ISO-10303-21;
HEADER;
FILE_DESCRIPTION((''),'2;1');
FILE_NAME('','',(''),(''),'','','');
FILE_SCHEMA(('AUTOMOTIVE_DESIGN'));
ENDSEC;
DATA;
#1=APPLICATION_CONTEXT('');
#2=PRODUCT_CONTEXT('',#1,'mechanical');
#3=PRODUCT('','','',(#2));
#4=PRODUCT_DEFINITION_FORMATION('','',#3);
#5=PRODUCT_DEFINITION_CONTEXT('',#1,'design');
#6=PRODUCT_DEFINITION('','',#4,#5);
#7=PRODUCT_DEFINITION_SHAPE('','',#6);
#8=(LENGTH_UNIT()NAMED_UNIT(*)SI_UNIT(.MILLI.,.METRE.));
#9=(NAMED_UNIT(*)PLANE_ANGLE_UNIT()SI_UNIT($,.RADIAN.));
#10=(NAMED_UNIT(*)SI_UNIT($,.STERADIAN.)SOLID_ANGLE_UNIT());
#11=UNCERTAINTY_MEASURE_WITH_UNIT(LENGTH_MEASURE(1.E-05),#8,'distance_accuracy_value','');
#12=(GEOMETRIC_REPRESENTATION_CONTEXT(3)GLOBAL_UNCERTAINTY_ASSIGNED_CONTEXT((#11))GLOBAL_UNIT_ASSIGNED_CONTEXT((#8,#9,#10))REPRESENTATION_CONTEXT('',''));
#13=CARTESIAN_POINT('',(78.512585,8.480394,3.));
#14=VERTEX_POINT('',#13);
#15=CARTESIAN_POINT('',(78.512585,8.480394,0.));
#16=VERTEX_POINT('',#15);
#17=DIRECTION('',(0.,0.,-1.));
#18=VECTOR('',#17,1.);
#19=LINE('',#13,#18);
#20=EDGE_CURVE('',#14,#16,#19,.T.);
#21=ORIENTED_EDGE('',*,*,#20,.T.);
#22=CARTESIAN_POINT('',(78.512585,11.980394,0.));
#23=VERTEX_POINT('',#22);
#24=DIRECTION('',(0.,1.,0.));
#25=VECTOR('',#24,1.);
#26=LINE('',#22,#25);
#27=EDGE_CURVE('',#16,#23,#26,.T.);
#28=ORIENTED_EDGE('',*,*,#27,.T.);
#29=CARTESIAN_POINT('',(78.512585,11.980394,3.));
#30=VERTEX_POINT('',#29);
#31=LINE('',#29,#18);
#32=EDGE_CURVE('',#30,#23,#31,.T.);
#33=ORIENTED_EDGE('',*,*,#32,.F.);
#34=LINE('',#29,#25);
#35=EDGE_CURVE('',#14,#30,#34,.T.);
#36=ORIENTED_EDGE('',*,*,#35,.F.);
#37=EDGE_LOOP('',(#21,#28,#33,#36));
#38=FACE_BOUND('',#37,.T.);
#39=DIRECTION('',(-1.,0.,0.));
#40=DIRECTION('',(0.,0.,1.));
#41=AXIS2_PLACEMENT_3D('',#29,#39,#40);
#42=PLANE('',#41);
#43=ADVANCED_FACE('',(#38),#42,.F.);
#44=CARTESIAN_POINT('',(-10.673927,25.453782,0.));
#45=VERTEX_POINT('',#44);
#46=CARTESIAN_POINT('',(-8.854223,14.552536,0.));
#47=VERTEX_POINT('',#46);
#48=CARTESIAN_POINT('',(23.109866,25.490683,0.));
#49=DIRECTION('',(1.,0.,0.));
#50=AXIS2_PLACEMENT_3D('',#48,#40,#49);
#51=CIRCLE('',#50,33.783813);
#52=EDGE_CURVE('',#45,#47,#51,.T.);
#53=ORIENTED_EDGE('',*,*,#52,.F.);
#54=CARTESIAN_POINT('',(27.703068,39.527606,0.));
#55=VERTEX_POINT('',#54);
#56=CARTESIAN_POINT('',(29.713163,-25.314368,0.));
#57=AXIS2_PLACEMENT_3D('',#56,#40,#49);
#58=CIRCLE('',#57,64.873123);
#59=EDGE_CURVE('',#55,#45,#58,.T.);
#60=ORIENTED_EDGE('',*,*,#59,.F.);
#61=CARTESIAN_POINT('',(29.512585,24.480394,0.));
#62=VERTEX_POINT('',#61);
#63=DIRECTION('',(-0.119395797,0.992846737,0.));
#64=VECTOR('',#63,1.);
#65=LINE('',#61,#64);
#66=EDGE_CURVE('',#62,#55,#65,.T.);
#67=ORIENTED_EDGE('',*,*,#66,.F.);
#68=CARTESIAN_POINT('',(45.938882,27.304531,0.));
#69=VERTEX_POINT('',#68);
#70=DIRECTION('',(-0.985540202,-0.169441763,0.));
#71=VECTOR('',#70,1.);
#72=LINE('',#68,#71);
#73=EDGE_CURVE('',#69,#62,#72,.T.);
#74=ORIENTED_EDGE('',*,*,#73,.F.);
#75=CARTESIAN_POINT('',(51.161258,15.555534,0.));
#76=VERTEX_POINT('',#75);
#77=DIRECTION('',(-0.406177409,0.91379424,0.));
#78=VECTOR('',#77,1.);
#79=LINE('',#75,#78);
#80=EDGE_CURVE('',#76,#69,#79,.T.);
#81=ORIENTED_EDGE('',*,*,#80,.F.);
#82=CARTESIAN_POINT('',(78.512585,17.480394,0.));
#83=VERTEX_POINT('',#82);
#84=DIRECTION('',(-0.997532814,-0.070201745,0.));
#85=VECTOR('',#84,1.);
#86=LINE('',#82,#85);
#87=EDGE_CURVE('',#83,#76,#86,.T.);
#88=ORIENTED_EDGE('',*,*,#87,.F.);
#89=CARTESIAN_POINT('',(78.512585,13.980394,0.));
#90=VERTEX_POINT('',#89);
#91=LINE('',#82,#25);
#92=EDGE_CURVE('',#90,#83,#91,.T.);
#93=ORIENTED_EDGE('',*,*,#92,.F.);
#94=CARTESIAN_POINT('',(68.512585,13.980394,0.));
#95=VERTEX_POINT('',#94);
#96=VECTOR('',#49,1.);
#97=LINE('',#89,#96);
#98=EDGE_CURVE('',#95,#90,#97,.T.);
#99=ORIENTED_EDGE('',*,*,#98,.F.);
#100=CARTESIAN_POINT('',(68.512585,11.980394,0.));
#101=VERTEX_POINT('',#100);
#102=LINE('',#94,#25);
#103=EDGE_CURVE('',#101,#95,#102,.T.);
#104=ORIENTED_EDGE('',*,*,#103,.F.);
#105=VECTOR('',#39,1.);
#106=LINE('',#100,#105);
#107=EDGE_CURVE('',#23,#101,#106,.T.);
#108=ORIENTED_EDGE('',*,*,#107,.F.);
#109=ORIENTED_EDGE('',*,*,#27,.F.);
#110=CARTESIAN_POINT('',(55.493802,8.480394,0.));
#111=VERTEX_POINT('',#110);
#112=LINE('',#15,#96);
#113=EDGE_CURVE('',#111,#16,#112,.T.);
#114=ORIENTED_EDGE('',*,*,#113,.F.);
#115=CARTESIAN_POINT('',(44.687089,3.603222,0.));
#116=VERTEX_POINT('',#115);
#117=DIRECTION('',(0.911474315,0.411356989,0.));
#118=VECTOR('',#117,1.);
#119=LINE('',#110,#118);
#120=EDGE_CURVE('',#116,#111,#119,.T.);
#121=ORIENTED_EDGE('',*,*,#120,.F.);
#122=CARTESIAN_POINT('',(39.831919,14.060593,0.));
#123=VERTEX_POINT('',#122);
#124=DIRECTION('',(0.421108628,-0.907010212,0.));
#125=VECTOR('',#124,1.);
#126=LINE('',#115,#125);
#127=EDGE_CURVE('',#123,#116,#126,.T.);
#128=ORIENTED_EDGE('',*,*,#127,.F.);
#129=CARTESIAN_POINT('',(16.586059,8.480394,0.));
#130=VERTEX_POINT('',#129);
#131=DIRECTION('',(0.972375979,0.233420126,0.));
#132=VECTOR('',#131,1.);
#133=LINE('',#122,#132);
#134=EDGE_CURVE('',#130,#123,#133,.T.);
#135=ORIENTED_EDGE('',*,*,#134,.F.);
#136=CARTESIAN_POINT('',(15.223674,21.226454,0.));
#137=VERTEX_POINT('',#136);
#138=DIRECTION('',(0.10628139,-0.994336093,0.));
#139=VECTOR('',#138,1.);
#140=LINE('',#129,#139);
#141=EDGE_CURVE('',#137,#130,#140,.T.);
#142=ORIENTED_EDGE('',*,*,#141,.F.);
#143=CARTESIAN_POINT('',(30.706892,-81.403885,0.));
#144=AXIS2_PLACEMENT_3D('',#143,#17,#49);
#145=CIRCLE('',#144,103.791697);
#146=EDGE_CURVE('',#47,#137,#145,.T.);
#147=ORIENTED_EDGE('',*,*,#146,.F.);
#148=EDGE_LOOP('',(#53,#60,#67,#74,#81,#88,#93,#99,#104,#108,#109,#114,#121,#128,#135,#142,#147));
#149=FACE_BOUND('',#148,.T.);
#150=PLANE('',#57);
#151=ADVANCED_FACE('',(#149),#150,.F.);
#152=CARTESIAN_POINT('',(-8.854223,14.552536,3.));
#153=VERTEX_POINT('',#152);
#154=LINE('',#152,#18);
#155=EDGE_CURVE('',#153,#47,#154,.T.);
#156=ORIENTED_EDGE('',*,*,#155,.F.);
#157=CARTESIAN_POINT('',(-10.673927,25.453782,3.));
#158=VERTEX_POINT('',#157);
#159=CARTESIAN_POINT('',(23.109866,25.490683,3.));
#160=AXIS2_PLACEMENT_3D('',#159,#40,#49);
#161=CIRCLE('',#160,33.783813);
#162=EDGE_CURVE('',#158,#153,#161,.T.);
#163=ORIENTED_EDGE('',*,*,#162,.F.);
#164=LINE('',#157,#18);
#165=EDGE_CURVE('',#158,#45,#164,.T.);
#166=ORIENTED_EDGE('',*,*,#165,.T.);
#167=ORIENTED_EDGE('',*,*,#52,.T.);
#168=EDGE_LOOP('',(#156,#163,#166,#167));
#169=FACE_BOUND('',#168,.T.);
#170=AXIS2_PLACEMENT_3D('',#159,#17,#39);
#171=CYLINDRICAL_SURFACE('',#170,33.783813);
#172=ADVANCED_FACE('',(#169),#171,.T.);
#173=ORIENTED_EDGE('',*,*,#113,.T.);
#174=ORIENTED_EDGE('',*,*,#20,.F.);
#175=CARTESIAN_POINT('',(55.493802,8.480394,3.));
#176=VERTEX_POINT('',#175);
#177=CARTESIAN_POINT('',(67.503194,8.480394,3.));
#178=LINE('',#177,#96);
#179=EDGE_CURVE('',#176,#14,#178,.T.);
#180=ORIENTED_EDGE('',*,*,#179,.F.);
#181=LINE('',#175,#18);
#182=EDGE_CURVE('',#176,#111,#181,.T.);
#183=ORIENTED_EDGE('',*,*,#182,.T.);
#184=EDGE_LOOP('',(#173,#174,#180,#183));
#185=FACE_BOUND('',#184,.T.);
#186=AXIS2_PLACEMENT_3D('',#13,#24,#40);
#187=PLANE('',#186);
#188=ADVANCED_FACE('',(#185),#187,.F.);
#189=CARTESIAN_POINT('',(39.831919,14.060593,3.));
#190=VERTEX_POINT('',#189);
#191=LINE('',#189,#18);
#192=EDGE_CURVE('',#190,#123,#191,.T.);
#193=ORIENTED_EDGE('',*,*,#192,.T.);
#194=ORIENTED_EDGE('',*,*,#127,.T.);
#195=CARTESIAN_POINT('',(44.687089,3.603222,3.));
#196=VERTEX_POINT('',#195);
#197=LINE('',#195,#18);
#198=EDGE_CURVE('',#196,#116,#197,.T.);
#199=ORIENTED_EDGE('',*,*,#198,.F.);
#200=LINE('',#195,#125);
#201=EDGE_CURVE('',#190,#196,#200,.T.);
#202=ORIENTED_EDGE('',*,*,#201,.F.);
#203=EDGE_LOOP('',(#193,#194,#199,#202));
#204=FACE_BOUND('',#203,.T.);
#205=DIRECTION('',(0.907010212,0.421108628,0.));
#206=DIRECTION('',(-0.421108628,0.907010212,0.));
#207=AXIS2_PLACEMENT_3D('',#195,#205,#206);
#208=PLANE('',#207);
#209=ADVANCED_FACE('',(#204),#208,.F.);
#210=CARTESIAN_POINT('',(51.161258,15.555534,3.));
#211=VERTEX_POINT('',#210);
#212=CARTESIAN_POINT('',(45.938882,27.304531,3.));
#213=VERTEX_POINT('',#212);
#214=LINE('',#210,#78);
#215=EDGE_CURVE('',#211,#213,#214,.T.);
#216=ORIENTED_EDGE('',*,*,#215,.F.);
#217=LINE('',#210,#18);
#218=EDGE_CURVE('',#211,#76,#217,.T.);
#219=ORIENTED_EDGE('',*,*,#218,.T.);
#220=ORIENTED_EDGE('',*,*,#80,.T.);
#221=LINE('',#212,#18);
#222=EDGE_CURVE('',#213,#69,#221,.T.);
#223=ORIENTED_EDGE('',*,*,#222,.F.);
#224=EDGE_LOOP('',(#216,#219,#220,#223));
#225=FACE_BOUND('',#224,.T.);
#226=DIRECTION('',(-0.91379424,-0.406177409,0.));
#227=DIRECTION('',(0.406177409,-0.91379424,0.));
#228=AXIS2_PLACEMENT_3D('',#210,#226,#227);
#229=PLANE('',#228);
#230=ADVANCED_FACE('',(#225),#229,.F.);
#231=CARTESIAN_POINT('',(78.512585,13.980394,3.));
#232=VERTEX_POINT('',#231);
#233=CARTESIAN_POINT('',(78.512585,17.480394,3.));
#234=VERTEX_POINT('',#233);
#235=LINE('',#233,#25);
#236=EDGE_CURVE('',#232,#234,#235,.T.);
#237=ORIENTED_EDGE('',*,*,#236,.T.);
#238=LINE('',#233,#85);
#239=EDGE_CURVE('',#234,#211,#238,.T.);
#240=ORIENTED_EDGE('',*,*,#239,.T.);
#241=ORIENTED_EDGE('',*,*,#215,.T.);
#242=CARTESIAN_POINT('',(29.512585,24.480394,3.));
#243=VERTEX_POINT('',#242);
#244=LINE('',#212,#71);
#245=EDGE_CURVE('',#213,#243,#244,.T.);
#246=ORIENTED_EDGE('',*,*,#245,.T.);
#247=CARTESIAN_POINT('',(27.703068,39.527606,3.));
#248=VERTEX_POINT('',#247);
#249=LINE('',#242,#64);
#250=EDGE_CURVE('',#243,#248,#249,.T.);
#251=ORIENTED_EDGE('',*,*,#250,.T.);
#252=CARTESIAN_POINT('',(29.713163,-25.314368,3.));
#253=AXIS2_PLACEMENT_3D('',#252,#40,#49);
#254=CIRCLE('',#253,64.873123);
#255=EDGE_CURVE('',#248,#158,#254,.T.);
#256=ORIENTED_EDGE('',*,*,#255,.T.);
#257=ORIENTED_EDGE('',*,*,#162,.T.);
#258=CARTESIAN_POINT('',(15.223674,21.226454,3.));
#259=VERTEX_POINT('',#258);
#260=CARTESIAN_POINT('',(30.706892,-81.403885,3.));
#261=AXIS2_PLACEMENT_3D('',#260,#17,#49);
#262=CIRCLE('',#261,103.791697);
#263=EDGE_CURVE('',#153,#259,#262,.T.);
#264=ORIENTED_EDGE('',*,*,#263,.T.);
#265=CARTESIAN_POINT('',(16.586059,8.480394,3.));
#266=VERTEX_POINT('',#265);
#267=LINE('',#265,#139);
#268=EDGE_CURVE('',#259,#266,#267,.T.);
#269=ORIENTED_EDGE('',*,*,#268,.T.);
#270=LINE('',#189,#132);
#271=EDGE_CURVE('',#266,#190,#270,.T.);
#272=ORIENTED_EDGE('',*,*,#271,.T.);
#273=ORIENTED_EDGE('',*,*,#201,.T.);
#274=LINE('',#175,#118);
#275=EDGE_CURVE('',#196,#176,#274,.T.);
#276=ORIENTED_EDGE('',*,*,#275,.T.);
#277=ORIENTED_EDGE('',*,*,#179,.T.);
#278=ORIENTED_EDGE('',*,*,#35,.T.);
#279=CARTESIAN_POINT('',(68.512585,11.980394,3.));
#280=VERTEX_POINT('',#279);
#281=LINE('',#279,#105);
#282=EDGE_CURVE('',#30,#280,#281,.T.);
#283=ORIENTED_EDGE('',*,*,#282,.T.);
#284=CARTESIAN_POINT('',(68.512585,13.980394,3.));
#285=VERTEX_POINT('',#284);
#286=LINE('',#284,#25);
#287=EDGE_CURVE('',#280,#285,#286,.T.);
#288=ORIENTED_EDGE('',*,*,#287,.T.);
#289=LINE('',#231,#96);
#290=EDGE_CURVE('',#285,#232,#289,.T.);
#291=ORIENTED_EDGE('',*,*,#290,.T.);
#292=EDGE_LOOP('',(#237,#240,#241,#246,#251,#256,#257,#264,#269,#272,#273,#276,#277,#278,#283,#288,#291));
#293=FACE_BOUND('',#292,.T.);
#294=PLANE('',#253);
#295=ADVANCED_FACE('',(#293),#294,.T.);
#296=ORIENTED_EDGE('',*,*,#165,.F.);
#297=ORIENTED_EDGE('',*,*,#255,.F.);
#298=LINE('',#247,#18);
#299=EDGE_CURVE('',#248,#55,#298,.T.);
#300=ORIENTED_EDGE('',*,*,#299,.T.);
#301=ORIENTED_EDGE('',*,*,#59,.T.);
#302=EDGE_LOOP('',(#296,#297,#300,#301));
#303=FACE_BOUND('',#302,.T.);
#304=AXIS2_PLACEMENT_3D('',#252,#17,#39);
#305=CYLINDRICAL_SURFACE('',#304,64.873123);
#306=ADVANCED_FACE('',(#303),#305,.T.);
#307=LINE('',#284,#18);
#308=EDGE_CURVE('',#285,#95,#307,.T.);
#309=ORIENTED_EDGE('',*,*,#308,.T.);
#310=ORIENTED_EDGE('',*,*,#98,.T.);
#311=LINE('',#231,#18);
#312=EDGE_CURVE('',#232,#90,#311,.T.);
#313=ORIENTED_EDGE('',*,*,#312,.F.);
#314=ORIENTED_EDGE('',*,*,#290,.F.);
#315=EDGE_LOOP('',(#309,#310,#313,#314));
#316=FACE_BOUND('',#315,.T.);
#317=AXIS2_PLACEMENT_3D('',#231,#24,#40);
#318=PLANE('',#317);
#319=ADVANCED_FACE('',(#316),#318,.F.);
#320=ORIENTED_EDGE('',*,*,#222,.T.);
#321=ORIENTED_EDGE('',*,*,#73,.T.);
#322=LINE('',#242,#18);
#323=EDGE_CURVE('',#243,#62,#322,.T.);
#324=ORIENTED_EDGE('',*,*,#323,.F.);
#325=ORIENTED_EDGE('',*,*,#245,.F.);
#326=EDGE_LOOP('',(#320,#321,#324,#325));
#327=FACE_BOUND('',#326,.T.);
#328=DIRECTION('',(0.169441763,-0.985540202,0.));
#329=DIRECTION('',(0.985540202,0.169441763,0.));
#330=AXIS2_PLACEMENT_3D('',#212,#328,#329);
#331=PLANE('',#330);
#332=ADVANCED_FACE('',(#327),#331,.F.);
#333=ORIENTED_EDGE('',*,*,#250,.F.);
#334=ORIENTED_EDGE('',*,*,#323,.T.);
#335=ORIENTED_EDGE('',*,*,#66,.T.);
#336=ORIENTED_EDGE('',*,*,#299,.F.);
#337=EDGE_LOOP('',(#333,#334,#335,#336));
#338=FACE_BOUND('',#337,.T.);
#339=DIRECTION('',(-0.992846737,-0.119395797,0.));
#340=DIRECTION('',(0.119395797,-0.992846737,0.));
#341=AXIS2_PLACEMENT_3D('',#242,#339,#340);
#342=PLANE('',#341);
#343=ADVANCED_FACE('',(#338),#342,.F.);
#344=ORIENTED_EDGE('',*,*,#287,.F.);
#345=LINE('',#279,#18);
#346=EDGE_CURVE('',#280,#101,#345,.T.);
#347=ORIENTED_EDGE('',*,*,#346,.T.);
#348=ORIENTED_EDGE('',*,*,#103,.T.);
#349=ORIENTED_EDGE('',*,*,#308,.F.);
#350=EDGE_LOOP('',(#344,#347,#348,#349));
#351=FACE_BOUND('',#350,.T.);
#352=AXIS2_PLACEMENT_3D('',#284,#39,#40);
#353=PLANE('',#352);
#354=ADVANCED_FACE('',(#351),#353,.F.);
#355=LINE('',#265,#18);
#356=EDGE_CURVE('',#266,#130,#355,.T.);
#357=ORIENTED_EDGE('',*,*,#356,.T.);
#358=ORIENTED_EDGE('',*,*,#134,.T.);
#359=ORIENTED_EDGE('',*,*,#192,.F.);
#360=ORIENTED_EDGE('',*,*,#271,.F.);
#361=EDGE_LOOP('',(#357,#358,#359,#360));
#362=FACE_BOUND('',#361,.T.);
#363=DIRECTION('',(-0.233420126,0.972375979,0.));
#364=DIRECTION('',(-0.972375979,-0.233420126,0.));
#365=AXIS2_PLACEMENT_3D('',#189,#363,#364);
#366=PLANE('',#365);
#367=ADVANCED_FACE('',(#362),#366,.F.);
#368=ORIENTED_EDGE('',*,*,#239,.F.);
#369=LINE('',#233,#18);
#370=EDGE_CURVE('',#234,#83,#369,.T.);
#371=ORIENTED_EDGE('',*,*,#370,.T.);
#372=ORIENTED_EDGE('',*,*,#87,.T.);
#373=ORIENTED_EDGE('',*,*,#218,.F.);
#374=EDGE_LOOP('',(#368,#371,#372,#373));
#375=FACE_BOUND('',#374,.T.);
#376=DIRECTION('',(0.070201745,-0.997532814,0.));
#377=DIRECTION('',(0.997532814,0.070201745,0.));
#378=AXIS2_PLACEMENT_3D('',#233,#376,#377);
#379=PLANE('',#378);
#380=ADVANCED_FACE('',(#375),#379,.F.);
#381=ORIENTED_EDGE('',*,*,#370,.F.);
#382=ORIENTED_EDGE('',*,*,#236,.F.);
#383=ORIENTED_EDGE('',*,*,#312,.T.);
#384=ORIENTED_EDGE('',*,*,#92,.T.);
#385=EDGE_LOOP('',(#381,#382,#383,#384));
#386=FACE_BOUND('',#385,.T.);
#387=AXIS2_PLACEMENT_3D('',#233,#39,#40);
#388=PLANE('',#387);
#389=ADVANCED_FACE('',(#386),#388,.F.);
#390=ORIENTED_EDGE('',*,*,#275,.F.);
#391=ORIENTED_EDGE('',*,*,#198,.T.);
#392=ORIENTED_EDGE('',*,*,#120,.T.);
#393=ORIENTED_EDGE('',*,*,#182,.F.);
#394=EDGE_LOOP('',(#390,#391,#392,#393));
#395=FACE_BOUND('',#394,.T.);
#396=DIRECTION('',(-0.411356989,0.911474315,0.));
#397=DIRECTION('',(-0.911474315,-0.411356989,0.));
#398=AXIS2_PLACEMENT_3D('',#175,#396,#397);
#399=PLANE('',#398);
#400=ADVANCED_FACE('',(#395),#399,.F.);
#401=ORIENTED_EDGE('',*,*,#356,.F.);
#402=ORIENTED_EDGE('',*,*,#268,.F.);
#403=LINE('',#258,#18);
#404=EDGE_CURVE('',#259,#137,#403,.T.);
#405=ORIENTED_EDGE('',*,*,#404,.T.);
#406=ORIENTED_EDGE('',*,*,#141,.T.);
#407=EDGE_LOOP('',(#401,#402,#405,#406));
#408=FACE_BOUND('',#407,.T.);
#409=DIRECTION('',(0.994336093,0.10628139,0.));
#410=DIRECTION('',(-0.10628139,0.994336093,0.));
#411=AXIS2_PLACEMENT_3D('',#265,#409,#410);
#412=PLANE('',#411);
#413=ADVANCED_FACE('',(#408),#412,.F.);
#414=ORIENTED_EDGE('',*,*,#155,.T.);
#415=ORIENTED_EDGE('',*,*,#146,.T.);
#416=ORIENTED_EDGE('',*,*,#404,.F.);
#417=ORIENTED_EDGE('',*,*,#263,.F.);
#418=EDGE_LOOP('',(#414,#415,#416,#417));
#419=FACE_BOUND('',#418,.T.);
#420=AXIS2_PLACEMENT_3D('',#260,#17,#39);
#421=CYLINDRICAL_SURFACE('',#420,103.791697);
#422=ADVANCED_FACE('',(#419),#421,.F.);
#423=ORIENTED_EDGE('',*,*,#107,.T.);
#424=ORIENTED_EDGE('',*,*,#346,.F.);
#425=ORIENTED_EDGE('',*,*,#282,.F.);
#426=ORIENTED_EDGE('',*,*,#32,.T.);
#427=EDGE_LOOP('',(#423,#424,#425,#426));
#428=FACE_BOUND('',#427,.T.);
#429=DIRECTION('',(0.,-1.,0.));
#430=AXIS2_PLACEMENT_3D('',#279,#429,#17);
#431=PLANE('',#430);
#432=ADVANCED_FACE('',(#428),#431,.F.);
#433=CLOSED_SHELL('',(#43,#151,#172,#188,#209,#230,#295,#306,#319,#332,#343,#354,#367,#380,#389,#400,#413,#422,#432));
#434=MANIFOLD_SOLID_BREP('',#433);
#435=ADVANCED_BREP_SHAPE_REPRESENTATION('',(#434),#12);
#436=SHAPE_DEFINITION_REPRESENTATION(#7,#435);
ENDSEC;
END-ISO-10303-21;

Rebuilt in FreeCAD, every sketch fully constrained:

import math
import FreeCAD as App
import Part
import Sketcher
from FreeCAD import Vector

doc = App.newDocument("Part")
body = doc.addObject("PartDesign::Body", "Body")

# Sketch on XY plane
sketch1 = body.newObject("Sketcher::SketchObject", "Sketch")
sketch1.AttachmentSupport = (doc.getObject("XY_Plane"), [""])
sketch1.MapMode = "FlatFace"
sketch1.addGeometry(Part.LineSegment(Vector(55.5, 8.5, 0), Vector(78.5, 8.5, 0)), False)
sketch1.addGeometry(Part.LineSegment(Vector(78.5, 8.5, 0), Vector(78.5, 12, 0)), False)
sketch1.addGeometry(Part.LineSegment(Vector(78.5, 12, 0), Vector(68.5, 12, 0)), False)
sketch1.addGeometry(Part.LineSegment(Vector(68.5, 12, 0), Vector(68.5, 14, 0)), False)
sketch1.addGeometry(Part.LineSegment(Vector(68.5, 14, 0), Vector(78.5, 14, 0)), False)
sketch1.addGeometry(Part.LineSegment(Vector(78.5, 14, 0), Vector(78.5, 17.5, 0)), False)
sketch1.addGeometry(Part.LineSegment(Vector(78.5, 17.5, 0), Vector(51.2, 15.6, 0)), False)
sketch1.addGeometry(Part.LineSegment(Vector(51.2, 15.6, 0), Vector(45.9, 27.3, 0)), False)
sketch1.addGeometry(Part.LineSegment(Vector(45.9, 27.3, 0), Vector(29.5, 24.5, 0)), False)
sketch1.addGeometry(Part.LineSegment(Vector(29.5, 24.5, 0), Vector(27.7, 39.5, 0)), False)
sketch1.addGeometry(Part.ArcOfCircle(Part.Circle(Vector(29.7, -25.3, 0), Vector(0, 0, 1), 64.9), math.radians(92), math.radians(129)), False)
sketch1.addGeometry(Part.ArcOfCircle(Part.Circle(Vector(23.1, 25.5, 0), Vector(0, 0, 1), 33.8), math.radians(-179.94), math.radians(-161.11)), False)
sketch1.addGeometry(Part.ArcOfCircle(Part.Circle(Vector(30.7, -81.4, 0), Vector(0, 0, 1), 103.8), math.radians(98.58), math.radians(112.41)), False)
sketch1.addGeometry(Part.LineSegment(Vector(15.2, 21.2, 0), Vector(16.6, 8.5, 0)), False)
sketch1.addGeometry(Part.LineSegment(Vector(16.6, 8.5, 0), Vector(39.8, 14.1, 0)), False)
sketch1.addGeometry(Part.LineSegment(Vector(39.8, 14.1, 0), Vector(44.7, 3.6, 0)), False)
sketch1.addGeometry(Part.LineSegment(Vector(44.7, 3.6, 0), Vector(55.5, 8.5, 0)), False)
sketch1.addConstraint(Sketcher.Constraint("Coincident", 0, 2, 1, 1))
sketch1.addConstraint(Sketcher.Constraint("Coincident", 1, 2, 2, 1))
sketch1.addConstraint(Sketcher.Constraint("Coincident", 2, 2, 3, 1))
sketch1.addConstraint(Sketcher.Constraint("Coincident", 3, 2, 4, 1))
sketch1.addConstraint(Sketcher.Constraint("Coincident", 4, 2, 5, 1))
sketch1.addConstraint(Sketcher.Constraint("Coincident", 5, 2, 6, 1))
sketch1.addConstraint(Sketcher.Constraint("Coincident", 6, 2, 7, 1))
sketch1.addConstraint(Sketcher.Constraint("Coincident", 7, 2, 8, 1))
sketch1.addConstraint(Sketcher.Constraint("Coincident", 8, 2, 9, 1))
sketch1.addConstraint(Sketcher.Constraint("Coincident", 9, 2, 10, 1))
sketch1.addConstraint(Sketcher.Constraint("Coincident", 10, 2, 11, 1))
sketch1.addConstraint(Sketcher.Constraint("Coincident", 11, 2, 12, 2))
sketch1.addConstraint(Sketcher.Constraint("Coincident", 12, 1, 13, 1))
sketch1.addConstraint(Sketcher.Constraint("Coincident", 13, 2, 14, 1))
sketch1.addConstraint(Sketcher.Constraint("Coincident", 14, 2, 15, 1))
sketch1.addConstraint(Sketcher.Constraint("Coincident", 15, 2, 16, 1))
sketch1.addConstraint(Sketcher.Constraint("Coincident", 16, 2, 0, 1))
sketch1.addConstraint(Sketcher.Constraint("Horizontal", 0))
sketch1.addConstraint(Sketcher.Constraint("Vertical", 1))
sketch1.addConstraint(Sketcher.Constraint("Horizontal", 2))
sketch1.addConstraint(Sketcher.Constraint("Vertical", 3))
sketch1.addConstraint(Sketcher.Constraint("Horizontal", 4))
sketch1.addConstraint(Sketcher.Constraint("Vertical", 5))
sketch1.addConstraint(Sketcher.Constraint("Horizontal", 0, 2, 13, 2))
sketch1.addConstraint(Sketcher.Constraint("Vertical", 1, 2, 4, 2))
sketch1.addConstraint(Sketcher.Constraint("Equal", 1, 5))
sketch1.addConstraint(Sketcher.Constraint("DistanceX", 2, 2, 2, 1, 10.0))
sketch1.addConstraint(Sketcher.Constraint("DistanceY", 3, 1, 3, 2, 2.0))
sketch1.addConstraint(Sketcher.Constraint("DistanceY", 1, 1, 1, 2, 3.5))
sketch1.addConstraint(Sketcher.Constraint("DistanceX", 8, 2, 3, 2, 39.0))
sketch1.addConstraint(Sketcher.Constraint("DistanceY", 13, 2, 8, 2, 16.0))
sketch1.addConstraint(Sketcher.Constraint("Radius", 10, 64.873123))
sketch1.addConstraint(Sketcher.Constraint("Radius", 11, 33.783813))
sketch1.addConstraint(Sketcher.Constraint("Radius", 12, 103.791697))
sketch1.addConstraint(Sketcher.Constraint("Distance", 16, 11.8563))
sketch1.addConstraint(Sketcher.Constraint("DistanceX", -1, 1, 16, 2, 55.493802))
sketch1.addConstraint(Sketcher.Constraint("DistanceX", 11, 3, 9, 2, 4.593201))
sketch1.addConstraint(Sketcher.Constraint("DistanceY", 10, 2, 11, 3, 0.036901))
sketch1.addConstraint(Sketcher.Constraint("DistanceX", 10, 2, 12, 1, 25.897601))
sketch1.addConstraint(Sketcher.Constraint("DistanceY", 14, 2, 8, 2, 10.419801))
sketch1.addConstraint(Sketcher.Constraint("DistanceX", 0, 1, 0, 2, 23.018784))
sketch1.addConstraint(Sketcher.Constraint("DistanceX", -1, 1, 12, 3, 30.706892))
sketch1.addConstraint(Sketcher.Constraint("DistanceX", -1, 1, 6, 2, 51.161258))
sketch1.addConstraint(Sketcher.Constraint("DistanceX", -1, 1, 7, 2, 45.938882))
sketch1.addConstraint(Sketcher.Constraint("DistanceY", -1, 1, 7, 2, 27.304531))
sketch1.addConstraint(Sketcher.Constraint("DistanceY", -1, 1, 10, 2, 25.453782))
sketch1.addConstraint(Sketcher.Constraint("DistanceX", -1, 1, 13, 2, 16.586059))
sketch1.addConstraint(Sketcher.Constraint("DistanceX", -1, 1, 14, 2, 39.831919))
sketch1.addConstraint(Sketcher.Constraint("DistanceX", -1, 1, 15, 2, 44.687089))
sketch1.addConstraint(Sketcher.Constraint("DistanceY", 10, 3, 11, 3, 50.805051))
sketch1.addConstraint(Sketcher.Constraint("DistanceX", 10, 3, 12, 3, 0.993729))
sketch1.addConstraint(Sketcher.Constraint("DistanceY", 0, 2, 11, 3, 17.010289))
sketch1.addConstraint(Sketcher.Constraint("DistanceY", 12, 3, 0, 2, 89.884279))
sketch1.addConstraint(Sketcher.Constraint("DistanceY", 3, 2, 6, 2, 1.57514))
pad1 = body.newObject("PartDesign::Pad", "Pad")
pad1.Profile = sketch1
pad1.Length = 3

doc.recompute()
